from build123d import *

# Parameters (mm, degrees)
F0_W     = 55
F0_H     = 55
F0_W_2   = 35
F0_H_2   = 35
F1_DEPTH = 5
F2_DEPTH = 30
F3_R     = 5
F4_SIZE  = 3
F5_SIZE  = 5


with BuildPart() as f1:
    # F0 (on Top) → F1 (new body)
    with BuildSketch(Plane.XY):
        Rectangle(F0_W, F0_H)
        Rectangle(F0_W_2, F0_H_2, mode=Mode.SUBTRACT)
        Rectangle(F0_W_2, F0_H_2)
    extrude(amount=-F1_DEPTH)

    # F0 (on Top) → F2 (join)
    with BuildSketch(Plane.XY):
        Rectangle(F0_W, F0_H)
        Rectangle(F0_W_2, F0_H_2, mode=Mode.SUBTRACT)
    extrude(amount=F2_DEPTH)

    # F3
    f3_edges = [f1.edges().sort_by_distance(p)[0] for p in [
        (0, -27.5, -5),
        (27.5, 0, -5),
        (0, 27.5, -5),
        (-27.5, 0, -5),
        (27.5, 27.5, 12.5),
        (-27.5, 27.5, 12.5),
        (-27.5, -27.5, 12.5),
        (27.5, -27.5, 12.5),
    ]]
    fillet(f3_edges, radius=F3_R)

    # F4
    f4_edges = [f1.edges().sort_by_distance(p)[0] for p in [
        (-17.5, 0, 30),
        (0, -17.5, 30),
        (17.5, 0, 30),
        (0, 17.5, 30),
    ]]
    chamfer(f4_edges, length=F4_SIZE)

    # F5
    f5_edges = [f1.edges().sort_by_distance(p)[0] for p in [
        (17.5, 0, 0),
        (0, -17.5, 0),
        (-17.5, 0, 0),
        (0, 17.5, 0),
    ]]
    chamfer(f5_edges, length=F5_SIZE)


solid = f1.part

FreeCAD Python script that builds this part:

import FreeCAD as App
import Part
import Sketcher

V = App.Vector


def edges_at(feature, points):
    """Names of the edges that pass closest to the given points."""
    edges = feature.Shape.Edges
    near = lambda p: min(range(len(edges)), key=lambda i: edges[i].distToShape(Part.Vertex(*p))[0])
    return sorted({f"Edge{near(p) + 1}" for p in points})


def add_polygon(sketch, points):
    """Adds a closed chain of lines whose ends are joined by coincident constraints."""
    first, n = sketch.GeometryCount, len(points)
    for a, b in zip(points, points[1:] + points[:1]):
        sketch.addGeometry(Part.LineSegment(App.Vector(*a, 0), App.Vector(*b, 0)), False)
    for i in range(n):
        sketch.addConstraint(Sketcher.Constraint("Coincident", first + i, 2, first + (i + 1) % n, 1))

doc = App.newDocument("Part")
params = doc.addObject("Spreadsheet::Sheet", "Params")
for row, (alias, value) in enumerate([
    ("sketch1_width", "55 mm"),
    ("pad1_length", "5 mm"),
    ("sketch2_width", "55 mm"),
    ("sketch2_width2", "35 mm"),
    ("pad2_length", "30 mm"),
    ("fillet_radius", "5 mm"),
    ("chamfer_size", "3 mm"),
    ("chamfer2_size", "5 mm"),
], start=1):
    params.set(f"A{row}", alias)
    params.set(f"B{row}", "=" + value)
    params.setAlias(f"B{row}", alias)

body = doc.addObject("PartDesign::Body", "Body")

# Sketch on XY plane
sketch1 = doc.addObject("Sketcher::SketchObject", "Sketch")
body.addObject(sketch1)
sketch1.AttachmentSupport = (doc.XY_Plane, [""])
sketch1.MapMode = "FlatFace"
add_polygon(sketch1, [(-28, 28), (-28, -28), (28, -28), (28, 28)])  # lines 0-3
sketch1.addConstraint([
    Sketcher.Constraint("Vertical", 0),
    Sketcher.Constraint("Horizontal", 1),
    Sketcher.Constraint("Vertical", 2),
    Sketcher.Constraint("Horizontal", 3),
    Sketcher.Constraint("Symmetric", 0, 2, 2, 2, -1, 1),
    Sketcher.Constraint("Equal", 3, 0),
    Sketcher.Constraint("DistanceX", 1, 1, 1, 2, 55.0),
])
sketch1.setExpression("Constraints[10]", "Params.sketch1_width")
pad1 = doc.addObject("PartDesign::Pad", "Pad")
body.addObject(pad1)
pad1.Profile = sketch1
pad1.setExpression("Length", "Params.pad1_length")
pad1.Reversed = True

# Sketch on XY plane
sketch2 = doc.addObject("Sketcher::SketchObject", "Sketch001")
body.addObject(sketch2)
sketch2.AttachmentSupport = (doc.XY_Plane, [""])
sketch2.MapMode = "FlatFace"
add_polygon(sketch2, [(-28, 28), (-28, -28), (28, -28), (28, 28)])  # lines 0-3
add_polygon(sketch2, [(18, -18), (-18, -18), (-18, 18), (18, 18)])  # lines 4-7
sketch2.addConstraint([
    Sketcher.Constraint("Vertical", 0),
    Sketcher.Constraint("Horizontal", 1),
    Sketcher.Constraint("Vertical", 2),
    Sketcher.Constraint("Horizontal", 3),
    Sketcher.Constraint("Horizontal", 4),
    Sketcher.Constraint("Vertical", 5),
    Sketcher.Constraint("Horizontal", 6),
    Sketcher.Constraint("Vertical", 7),
    Sketcher.Constraint("Symmetric", 0, 2, 2, 2, -1, 1),
    Sketcher.Constraint("Symmetric", 4, 2, 6, 2, -1, 1),
    Sketcher.Constraint("Equal", 3, 0),
    Sketcher.Constraint("Equal", 6, 5),
    Sketcher.Constraint("DistanceX", 1, 1, 1, 2, 55.0),
    Sketcher.Constraint("DistanceX", 4, 2, 4, 1, 35.0),
])
sketch2.setExpression("Constraints[20]", "Params.sketch2_width")
sketch2.setExpression("Constraints[21]", "Params.sketch2_width2")
pad2 = doc.addObject("PartDesign::Pad", "Pad001")
body.addObject(pad2)
pad2.Profile = sketch2
pad2.setExpression("Length", "Params.pad2_length")
doc.recompute()

fillet = doc.addObject("PartDesign::Fillet", "Fillet")
body.addObject(fillet)
fillet.Base = (pad2, edges_at(pad2, [
    (0, -27.5, -5),
    (27.5, 0, -5),
    (0, 27.5, -5),
    (-27.5, 0, -5),
    (27.5, 27.5, 12.5),
    (-27.5, 27.5, 12.5),
    (-27.5, -27.5, 12.5),
    (27.5, -27.5, 12.5),
]))
fillet.setExpression("Radius", "Params.fillet_radius")
doc.recompute()

chamfer = doc.addObject("PartDesign::Chamfer", "Chamfer")
body.addObject(chamfer)
chamfer.Base = (fillet, edges_at(fillet, [
    (-17.5, 0, 30),
    (0, -17.5, 30),
    (17.5, 0, 30),
    (0, 17.5, 30),
]))
chamfer.setExpression("Size", "Params.chamfer_size")
doc.recompute()

chamfer2 = doc.addObject("PartDesign::Chamfer", "Chamfer001")
body.addObject(chamfer2)
chamfer2.Base = (chamfer, edges_at(chamfer, [
    (17.5, 0, 0),
    (0, -17.5, 0),
    (-17.5, 0, 0),
    (0, 17.5, 0),
]))
chamfer2.setExpression("Size", "Params.chamfer2_size")

doc.recompute()
